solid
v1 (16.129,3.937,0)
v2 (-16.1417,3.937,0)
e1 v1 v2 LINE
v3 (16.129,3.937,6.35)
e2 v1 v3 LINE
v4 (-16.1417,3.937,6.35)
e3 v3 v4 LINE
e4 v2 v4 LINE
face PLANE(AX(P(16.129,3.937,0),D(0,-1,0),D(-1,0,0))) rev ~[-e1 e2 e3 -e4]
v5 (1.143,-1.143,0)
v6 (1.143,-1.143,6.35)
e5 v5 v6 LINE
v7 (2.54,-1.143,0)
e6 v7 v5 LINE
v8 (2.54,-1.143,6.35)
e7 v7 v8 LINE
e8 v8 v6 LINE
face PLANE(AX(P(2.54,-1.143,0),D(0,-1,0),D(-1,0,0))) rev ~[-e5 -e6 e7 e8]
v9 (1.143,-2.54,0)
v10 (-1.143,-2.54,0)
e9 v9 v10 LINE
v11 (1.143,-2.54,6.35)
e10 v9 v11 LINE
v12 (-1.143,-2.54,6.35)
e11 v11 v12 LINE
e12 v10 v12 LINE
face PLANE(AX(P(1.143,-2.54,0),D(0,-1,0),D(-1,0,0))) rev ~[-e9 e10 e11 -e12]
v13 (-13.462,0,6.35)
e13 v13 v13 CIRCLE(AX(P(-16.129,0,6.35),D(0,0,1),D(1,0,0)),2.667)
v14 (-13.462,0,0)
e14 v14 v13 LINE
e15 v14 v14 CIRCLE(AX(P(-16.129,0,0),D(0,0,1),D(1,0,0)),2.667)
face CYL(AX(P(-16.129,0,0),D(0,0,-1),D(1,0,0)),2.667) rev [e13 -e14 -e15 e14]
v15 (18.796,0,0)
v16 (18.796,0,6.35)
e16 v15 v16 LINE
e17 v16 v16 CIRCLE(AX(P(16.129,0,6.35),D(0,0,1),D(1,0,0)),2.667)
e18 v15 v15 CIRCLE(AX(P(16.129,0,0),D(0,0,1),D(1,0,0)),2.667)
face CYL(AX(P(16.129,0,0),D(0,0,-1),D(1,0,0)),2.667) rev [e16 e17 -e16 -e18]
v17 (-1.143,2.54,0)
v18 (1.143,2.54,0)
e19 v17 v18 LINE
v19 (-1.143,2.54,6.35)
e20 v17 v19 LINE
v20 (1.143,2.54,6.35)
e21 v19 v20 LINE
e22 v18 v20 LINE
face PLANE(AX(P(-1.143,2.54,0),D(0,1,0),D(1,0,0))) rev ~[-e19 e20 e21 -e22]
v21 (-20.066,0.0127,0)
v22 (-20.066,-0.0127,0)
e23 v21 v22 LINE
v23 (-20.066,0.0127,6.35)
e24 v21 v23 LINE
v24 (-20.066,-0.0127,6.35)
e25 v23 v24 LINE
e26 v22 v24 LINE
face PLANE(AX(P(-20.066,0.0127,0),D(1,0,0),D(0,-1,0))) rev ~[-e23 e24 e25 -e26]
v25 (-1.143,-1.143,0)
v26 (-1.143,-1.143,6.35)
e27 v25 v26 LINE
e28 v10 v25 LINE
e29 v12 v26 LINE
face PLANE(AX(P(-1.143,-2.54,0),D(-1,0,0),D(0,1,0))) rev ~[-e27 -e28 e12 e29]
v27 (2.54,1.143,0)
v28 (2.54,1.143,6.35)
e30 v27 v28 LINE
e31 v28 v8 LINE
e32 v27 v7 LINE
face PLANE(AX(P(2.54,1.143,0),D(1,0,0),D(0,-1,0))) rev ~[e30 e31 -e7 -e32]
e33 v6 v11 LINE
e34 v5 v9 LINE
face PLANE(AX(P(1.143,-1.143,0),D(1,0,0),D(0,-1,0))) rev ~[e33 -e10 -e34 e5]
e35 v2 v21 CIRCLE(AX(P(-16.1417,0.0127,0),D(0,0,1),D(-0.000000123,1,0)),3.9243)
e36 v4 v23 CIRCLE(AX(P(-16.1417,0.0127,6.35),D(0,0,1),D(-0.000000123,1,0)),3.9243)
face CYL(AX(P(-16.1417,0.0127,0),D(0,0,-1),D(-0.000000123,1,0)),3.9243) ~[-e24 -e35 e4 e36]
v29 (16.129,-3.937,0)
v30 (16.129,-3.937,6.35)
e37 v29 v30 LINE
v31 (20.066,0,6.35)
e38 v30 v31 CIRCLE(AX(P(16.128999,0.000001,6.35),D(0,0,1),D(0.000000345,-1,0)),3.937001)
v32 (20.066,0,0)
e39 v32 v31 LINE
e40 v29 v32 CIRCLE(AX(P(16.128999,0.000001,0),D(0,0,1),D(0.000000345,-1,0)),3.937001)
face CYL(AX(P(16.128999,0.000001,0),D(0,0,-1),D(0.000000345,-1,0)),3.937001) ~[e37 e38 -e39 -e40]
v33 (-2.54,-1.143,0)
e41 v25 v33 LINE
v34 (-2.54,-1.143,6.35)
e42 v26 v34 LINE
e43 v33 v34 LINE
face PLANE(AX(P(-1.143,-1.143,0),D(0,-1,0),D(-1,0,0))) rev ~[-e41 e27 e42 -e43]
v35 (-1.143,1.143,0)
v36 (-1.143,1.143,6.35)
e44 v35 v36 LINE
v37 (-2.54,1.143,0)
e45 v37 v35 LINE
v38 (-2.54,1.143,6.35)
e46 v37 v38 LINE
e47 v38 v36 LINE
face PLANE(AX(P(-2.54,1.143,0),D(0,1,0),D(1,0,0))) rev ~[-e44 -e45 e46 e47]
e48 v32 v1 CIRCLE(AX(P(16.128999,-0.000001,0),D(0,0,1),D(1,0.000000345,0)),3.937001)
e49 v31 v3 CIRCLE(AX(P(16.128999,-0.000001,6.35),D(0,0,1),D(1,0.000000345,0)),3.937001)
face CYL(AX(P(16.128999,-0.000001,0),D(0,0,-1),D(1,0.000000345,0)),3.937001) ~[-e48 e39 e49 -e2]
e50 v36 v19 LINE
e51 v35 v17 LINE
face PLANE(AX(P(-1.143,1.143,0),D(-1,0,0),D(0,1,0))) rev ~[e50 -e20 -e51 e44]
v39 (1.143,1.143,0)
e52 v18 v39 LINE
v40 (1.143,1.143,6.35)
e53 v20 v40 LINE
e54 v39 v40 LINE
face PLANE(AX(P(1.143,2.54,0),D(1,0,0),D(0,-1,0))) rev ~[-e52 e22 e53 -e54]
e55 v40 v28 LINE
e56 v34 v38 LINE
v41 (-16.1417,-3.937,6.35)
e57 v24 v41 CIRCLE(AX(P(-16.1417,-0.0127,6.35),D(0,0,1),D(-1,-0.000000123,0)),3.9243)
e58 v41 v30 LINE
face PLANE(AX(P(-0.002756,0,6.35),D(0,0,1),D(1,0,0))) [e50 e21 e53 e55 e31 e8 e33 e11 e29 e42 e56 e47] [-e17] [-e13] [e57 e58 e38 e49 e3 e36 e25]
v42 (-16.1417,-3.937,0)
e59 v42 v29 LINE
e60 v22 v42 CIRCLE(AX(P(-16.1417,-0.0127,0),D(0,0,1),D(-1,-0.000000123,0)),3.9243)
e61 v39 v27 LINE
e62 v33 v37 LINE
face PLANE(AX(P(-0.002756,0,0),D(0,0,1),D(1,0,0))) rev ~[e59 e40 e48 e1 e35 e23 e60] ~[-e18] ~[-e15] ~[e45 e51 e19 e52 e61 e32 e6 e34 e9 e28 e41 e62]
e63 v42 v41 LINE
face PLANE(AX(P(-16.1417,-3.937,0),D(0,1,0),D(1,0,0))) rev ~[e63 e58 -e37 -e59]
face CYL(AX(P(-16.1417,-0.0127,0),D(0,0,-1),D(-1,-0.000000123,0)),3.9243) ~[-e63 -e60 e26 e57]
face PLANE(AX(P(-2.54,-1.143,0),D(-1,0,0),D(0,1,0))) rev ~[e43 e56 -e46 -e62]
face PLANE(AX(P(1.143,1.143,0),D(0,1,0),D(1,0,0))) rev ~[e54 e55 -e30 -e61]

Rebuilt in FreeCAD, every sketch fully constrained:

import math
import FreeCAD as App
import Part
import Sketcher

V = App.Vector
Q = App.Units.Quantity

doc = App.newDocument("Part")
body = doc.addObject("PartDesign::Body", "Body")

sketch1 = body.newObject("Sketcher::SketchObject", "Sketch")
sketch1.AttachmentSupport = (doc.getObject("XY_Plane"), [""])
sketch1.MapMode = "FlatFace"
sketch1.addGeometry([
    Part.LineSegment(V(-16.142, -3.937, 0), V(16.129, -3.937, 0)),
    Part.ArcOfCircle(Part.Circle(V(16.129, 0, 0), V(0, 0, 1), 3.937), math.radians(-90), math.radians(0)),
    Part.ArcOfCircle(Part.Circle(V(16.129, 0, 0), V(0, 0, 1), 3.937), math.radians(0), math.radians(90)),
    Part.LineSegment(V(16.129, 3.937, 0), V(-16.142, 3.937, 0)),
    Part.ArcOfCircle(Part.Circle(V(-16.142, 0.013, 0), V(0, 0, 1), 3.924), math.radians(90), math.radians(180)),
    Part.LineSegment(V(-20.066, 0.013, 0), V(-20.066, -0.013, 0)),
    Part.ArcOfCircle(Part.Circle(V(-16.142, -0.013, 0), V(0, 0, 1), 3.924), math.radians(-180), math.radians(-90)),
    Part.Circle(V(-16.129, 0, 0), V(0, 0, 1), 2.667),
    Part.LineSegment(V(-1.143, 1.143, 0), V(-1.143, 2.54, 0)),
    Part.LineSegment(V(-1.143, 2.54, 0), V(1.143, 2.54, 0)),
    Part.LineSegment(V(1.143, 2.54, 0), V(1.143, 1.143, 0)),
    Part.LineSegment(V(1.143, 1.143, 0), V(2.54, 1.143, 0)),
    Part.LineSegment(V(2.54, 1.143, 0), V(2.54, -1.143, 0)),
    Part.LineSegment(V(2.54, -1.143, 0), V(1.143, -1.143, 0)),
    Part.LineSegment(V(1.143, -1.143, 0), V(1.143, -2.54, 0)),
    Part.LineSegment(V(1.143, -2.54, 0), V(-1.143, -2.54, 0)),
    Part.LineSegment(V(-1.143, -2.54, 0), V(-1.143, -1.143, 0)),
    Part.LineSegment(V(-1.143, -1.143, 0), V(-2.54, -1.143, 0)),
    Part.LineSegment(V(-2.54, -1.143, 0), V(-2.54, 1.143, 0)),
    Part.LineSegment(V(-2.54, 1.143, 0), V(-1.143, 1.143, 0)),
    Part.Circle(V(16.129, 0, 0), V(0, 0, 1), 2.667),
], False)
sketch1.addConstraint([
    Sketcher.Constraint("Tangent", 0, 2, 1, 1),
    Sketcher.Constraint("Tangent", 1, 2, 2, 1),
    Sketcher.Constraint("Tangent", 2, 2, 3, 1),
    Sketcher.Constraint("Tangent", 3, 2, 4, 1),
    Sketcher.Constraint("Tangent", 4, 2, 5, 1),
    Sketcher.Constraint("Tangent", 5, 2, 6, 1),
    Sketcher.Constraint("Tangent", 6, 2, 0, 1),
    Sketcher.Constraint("Coincident", 8, 2, 9, 1),
    Sketcher.Constraint("Coincident", 9, 2, 10, 1),
    Sketcher.Constraint("Coincident", 10, 2, 11, 1),
    Sketcher.Constraint("Coincident", 11, 2, 12, 1),
    Sketcher.Constraint("Coincident", 12, 2, 13, 1),
    Sketcher.Constraint("Coincident", 13, 2, 14, 1),
    Sketcher.Constraint("Coincident", 14, 2, 15, 1),
    Sketcher.Constraint("Coincident", 15, 2, 16, 1),
    Sketcher.Constraint("Coincident", 16, 2, 17, 1),
    Sketcher.Constraint("Coincident", 17, 2, 18, 1),
    Sketcher.Constraint("Coincident", 18, 2, 19, 1),
    Sketcher.Constraint("Coincident", 19, 2, 8, 1),
    Sketcher.Constraint("Horizontal", 0),
    Sketcher.Constraint("Horizontal", 3),
    Sketcher.Constraint("Vertical", 5),
    Sketcher.Constraint("Vertical", 8),
    Sketcher.Constraint("Horizontal", 9),
    Sketcher.Constraint("Vertical", 10),
    Sketcher.Constraint("Horizontal", 11),
    Sketcher.Constraint("Vertical", 12),
    Sketcher.Constraint("Horizontal", 13),
    Sketcher.Constraint("Vertical", 14),
    Sketcher.Constraint("Horizontal", 15),
    Sketcher.Constraint("Vertical", 16),
    Sketcher.Constraint("Horizontal", 17),
    Sketcher.Constraint("Vertical", 18),
    Sketcher.Constraint("Horizontal", 19),
    Sketcher.Constraint("Coincident", 20, 3, 1, 3),
    Sketcher.Constraint("Equal", 1, 2),
    Sketcher.Constraint("Equal", 4, 6),
    Sketcher.Constraint("Equal", 7, 20),
    Sketcher.Constraint("Symmetric", 1, 3, 7, 3, -1, 1),
    Sketcher.Constraint("Symmetric", 8, 2, 14, 2, -1, 1),
    Sketcher.Constraint("Symmetric", 10, 2, 16, 2, -1, 1),
    Sketcher.Constraint("Symmetric", 12, 2, 18, 2, -1, 1),
    Sketcher.Constraint("Symmetric", 13, 2, 16, 2, -2),
    Sketcher.Constraint("PointOnObject", 1, 3, -1),
    Sketcher.Constraint("PointOnObject", 1, 2, -1),
    Sketcher.Constraint("Equal", 19, 8),
    Sketcher.Constraint("Equal", 15, 12),
    Sketcher.Constraint("Diameter", 7, Q("0.21 in")),
    Sketcher.Constraint("Radius", 1, Q("0.1550001 in")),
    Sketcher.Constraint("DistanceX", 9, 1, 9, 2, Q("0.09 in")),
    Sketcher.Constraint("DistanceY", -1, 1, 8, 2, Q("0.1 in")),
    Sketcher.Constraint("Radius", 4, Q("0.1545 in")),
    Sketcher.Constraint("DistanceX", -1, 1, 1, 2, Q("0.79 in")),
    Sketcher.Constraint("DistanceX", 4, 2, -1, 1, Q("0.79 in")),
])
pad1 = body.newObject("PartDesign::Pad", "Pad")
pad1.Profile = sketch1
pad1.Length = Q("0.25 in")

doc.recompute()
